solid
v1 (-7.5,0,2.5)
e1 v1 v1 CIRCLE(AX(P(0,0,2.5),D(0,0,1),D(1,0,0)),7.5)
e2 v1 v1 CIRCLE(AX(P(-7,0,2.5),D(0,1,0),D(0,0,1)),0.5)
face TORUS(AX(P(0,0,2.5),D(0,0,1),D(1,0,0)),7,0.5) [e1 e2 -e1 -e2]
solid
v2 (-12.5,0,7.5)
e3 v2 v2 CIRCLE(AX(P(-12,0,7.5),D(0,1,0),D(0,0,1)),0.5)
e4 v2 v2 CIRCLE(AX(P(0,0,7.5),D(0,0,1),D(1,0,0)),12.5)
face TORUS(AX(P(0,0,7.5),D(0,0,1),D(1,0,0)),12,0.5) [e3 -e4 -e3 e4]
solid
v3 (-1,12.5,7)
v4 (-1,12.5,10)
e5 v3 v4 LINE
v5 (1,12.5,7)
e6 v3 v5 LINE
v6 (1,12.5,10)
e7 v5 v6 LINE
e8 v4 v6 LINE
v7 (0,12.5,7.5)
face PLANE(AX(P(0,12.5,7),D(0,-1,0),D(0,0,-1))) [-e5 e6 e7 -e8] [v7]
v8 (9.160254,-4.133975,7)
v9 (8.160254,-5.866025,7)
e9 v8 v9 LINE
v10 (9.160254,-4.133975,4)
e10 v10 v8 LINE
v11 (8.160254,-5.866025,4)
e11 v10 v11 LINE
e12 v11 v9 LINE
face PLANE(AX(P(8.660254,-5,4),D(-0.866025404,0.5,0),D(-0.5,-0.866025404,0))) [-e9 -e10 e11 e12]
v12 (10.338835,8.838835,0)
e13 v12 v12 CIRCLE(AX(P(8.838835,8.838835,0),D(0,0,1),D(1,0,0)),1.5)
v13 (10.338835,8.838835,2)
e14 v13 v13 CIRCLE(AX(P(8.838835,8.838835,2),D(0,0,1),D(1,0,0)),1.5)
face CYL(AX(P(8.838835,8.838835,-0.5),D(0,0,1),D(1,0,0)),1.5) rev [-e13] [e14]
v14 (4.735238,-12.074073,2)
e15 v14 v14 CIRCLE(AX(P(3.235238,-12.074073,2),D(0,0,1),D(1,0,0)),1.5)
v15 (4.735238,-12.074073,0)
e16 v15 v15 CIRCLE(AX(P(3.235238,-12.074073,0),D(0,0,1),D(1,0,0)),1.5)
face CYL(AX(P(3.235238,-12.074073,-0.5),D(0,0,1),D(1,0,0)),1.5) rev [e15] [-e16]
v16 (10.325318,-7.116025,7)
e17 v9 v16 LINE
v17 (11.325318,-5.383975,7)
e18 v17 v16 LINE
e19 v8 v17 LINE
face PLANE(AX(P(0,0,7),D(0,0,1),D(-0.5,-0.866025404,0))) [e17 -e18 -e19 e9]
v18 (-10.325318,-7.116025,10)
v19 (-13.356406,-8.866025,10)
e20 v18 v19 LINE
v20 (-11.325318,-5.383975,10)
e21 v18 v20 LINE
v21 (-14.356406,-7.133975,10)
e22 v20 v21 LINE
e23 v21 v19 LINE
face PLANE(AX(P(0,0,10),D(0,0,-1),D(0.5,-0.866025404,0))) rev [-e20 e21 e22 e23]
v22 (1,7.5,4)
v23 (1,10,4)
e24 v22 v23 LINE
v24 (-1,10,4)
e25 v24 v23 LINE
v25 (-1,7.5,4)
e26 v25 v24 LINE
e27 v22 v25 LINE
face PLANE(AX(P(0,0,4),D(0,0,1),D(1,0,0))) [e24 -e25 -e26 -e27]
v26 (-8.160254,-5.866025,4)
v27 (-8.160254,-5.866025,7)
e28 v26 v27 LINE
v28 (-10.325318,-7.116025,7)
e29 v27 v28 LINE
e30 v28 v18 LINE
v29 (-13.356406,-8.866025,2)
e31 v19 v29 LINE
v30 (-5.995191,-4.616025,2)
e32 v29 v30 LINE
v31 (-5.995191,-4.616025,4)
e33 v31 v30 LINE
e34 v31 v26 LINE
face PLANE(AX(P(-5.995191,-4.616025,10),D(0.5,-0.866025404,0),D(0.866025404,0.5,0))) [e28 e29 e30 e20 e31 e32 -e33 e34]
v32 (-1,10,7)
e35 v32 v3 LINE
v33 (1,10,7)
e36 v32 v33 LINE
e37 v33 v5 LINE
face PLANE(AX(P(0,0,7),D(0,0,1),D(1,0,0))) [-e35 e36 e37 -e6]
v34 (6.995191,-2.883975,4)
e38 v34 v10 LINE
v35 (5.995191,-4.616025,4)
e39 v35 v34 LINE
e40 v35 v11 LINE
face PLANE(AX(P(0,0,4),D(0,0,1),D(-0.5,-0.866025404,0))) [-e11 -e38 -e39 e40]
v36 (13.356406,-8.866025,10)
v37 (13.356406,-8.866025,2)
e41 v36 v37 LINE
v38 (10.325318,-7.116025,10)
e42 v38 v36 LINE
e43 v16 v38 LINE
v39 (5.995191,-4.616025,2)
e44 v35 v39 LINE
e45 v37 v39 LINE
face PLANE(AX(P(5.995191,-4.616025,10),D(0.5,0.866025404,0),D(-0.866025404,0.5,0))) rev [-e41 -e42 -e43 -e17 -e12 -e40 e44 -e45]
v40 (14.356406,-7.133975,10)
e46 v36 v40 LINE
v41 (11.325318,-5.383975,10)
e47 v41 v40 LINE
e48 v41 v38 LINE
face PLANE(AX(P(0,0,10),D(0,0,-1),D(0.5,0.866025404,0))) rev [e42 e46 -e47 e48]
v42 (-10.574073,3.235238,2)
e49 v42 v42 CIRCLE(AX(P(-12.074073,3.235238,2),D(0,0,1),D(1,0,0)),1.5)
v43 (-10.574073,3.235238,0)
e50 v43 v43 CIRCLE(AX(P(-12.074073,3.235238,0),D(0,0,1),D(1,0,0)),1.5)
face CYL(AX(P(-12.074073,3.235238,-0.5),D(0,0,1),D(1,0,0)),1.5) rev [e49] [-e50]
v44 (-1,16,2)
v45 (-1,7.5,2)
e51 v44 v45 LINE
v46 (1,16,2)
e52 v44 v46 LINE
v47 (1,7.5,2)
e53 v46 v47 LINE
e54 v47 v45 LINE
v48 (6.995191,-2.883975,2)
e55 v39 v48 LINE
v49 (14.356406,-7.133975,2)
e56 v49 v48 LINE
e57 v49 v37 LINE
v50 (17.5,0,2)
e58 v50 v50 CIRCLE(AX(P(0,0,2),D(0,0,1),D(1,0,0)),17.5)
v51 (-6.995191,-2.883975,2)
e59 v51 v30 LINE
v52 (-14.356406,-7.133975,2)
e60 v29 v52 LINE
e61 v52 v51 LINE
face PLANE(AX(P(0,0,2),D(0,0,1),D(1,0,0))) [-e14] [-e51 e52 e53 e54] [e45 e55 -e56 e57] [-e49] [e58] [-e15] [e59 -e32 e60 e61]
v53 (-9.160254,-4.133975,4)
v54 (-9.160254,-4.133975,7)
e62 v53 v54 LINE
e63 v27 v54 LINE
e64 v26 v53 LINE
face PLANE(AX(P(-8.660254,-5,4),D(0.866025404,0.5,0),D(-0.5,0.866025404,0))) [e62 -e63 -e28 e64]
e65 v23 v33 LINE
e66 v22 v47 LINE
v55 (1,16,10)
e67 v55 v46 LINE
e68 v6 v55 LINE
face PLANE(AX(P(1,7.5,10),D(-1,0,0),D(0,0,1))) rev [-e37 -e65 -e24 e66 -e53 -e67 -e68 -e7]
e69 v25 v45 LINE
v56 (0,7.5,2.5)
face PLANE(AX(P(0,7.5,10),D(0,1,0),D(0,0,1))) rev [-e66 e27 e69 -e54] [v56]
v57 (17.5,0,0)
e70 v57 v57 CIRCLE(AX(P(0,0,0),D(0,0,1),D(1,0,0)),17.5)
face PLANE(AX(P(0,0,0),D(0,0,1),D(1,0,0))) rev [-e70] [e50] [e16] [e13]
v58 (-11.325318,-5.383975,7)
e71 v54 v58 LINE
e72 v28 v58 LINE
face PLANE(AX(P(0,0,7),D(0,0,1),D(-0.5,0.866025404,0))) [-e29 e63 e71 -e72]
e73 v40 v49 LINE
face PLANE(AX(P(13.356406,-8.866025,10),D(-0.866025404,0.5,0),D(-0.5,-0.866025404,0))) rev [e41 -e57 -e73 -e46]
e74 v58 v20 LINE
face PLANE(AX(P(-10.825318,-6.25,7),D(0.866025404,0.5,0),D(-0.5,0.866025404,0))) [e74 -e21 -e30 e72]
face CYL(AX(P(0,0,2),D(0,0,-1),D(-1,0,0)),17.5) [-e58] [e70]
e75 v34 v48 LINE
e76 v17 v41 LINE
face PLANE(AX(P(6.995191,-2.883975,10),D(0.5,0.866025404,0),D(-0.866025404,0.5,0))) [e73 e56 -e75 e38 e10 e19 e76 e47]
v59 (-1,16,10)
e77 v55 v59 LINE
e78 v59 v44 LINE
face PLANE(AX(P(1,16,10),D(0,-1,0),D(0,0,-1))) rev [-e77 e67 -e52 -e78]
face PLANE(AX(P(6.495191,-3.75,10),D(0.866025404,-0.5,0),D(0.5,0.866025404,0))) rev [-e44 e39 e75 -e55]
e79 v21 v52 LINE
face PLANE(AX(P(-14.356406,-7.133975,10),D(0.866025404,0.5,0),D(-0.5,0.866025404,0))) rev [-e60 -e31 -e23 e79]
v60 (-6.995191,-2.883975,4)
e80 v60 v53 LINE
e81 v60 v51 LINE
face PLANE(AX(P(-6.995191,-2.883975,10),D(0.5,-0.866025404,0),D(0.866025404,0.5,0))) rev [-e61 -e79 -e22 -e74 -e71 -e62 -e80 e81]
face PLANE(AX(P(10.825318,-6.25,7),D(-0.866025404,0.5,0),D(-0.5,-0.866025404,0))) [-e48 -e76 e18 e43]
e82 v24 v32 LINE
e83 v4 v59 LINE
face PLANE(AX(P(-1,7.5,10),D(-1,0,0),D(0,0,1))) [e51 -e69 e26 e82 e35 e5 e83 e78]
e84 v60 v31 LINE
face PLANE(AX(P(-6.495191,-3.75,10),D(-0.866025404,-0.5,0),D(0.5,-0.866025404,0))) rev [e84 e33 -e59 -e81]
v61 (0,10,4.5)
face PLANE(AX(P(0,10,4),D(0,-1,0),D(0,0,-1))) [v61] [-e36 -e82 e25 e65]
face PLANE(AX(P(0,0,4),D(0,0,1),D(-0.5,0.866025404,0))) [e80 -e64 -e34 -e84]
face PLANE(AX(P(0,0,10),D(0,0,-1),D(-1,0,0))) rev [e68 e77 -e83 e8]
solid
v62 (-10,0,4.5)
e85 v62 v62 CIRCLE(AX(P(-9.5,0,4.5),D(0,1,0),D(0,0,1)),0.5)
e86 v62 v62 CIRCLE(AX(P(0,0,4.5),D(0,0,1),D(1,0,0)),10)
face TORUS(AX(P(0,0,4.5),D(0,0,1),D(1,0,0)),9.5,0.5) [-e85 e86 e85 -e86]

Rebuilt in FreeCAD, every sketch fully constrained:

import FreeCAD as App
import Part
import Sketcher
from FreeCAD import Vector


def add_polygon(sketch, points):
    """Adds a closed chain of lines whose ends are joined by coincident constraints."""
    first, n = sketch.GeometryCount, len(points)
    for a, b in zip(points, points[1:] + points[:1]):
        sketch.addGeometry(Part.LineSegment(App.Vector(*a, 0), App.Vector(*b, 0)), False)
    for i in range(n):
        sketch.addConstraint(Sketcher.Constraint("Coincident", first + i, 2, first + (i + 1) % n, 1))

doc = App.newDocument("Part")
body = doc.addObject("PartDesign::Body", "Body")

sketch1 = body.newObject("Sketcher::SketchObject", "Sketch")
sketch1.AttachmentSupport = (doc.getObject("XY_Plane"), [""])
sketch1.MapMode = "FlatFace"
sketch1.addGeometry(Part.Circle(Vector(0, 0, 0), Vector(0, 0, 1), 18), False)
sketch1.addConstraint(Sketcher.Constraint("Coincident", 0, 3, -1, 1))
sketch1.addConstraint(Sketcher.Constraint("Diameter", 0, 35.0))
pad1 = body.newObject("PartDesign::Pad", "Pad")
pad1.Profile = sketch1
pad1.Length = 2

sketch2 = body.newObject("Sketcher::SketchObject", "Sketch001")
sketch2.AttachmentSupport = (doc.getObject("XY_Plane"), [""])
sketch2.MapMode = "FlatFace"
add_polygon(sketch2, [(1, 7.5), (1, 16), (-1, 16), (-1, 7.5)])
sketch2.addConstraint(Sketcher.Constraint("Vertical", 0))
sketch2.addConstraint(Sketcher.Constraint("Horizontal", 1))
sketch2.addConstraint(Sketcher.Constraint("Vertical", 2))
sketch2.addConstraint(Sketcher.Constraint("Horizontal", 3))
sketch2.addConstraint(Sketcher.Constraint("DistanceX", 1, 2, 1, 1, 2.0))
sketch2.addConstraint(Sketcher.Constraint("DistanceY", 0, 1, 0, 2, 8.5))
sketch2.addConstraint(Sketcher.Constraint("DistanceX", -1, 1, 0, 2, 1.0))
sketch2.addConstraint(Sketcher.Constraint("DistanceY", -1, 1, 0, 2, 16.0))
pad2 = body.newObject("PartDesign::Pad", "Pad001")
pad2.Profile = sketch2
pad2.Length = 10

sketch3 = body.newObject("Sketcher::SketchObject", "Sketch002")
sketch3.AttachmentSupport = (doc.getObject("XY_Plane"), [""])
sketch3.MapMode = "FlatFace"
sketch3.AttachmentOffset = App.Placement(Vector(0, 0, 10), App.Rotation())
add_polygon(sketch3, [(1, 7.5), (1, 10), (-1, 10), (-1, 7.5)])
sketch3.addConstraint(Sketcher.Constraint("Vertical", 0))
sketch3.addConstraint(Sketcher.Constraint("Horizontal", 1))
sketch3.addConstraint(Sketcher.Constraint("Vertical", 2))
sketch3.addConstraint(Sketcher.Constraint("Horizontal", 3))
sketch3.addConstraint(Sketcher.Constraint("DistanceX", 1, 2, 1, 1, 2.0))
sketch3.addConstraint(Sketcher.Constraint("DistanceY", 0, 1, 0, 2, 2.5))
sketch3.addConstraint(Sketcher.Constraint("DistanceX", -1, 1, 0, 2, 1.0))
sketch3.addConstraint(Sketcher.Constraint("DistanceY", -1, 1, 0, 2, 10.0))
pocket1 = body.newObject("PartDesign::Pocket", "Pocket")
pocket1.Profile = sketch3
pocket1.Length = 6

sketch4 = body.newObject("Sketcher::SketchObject", "Sketch003")
sketch4.AttachmentSupport = (doc.getObject("XY_Plane"), [""])
sketch4.MapMode = "FlatFace"
sketch4.AttachmentOffset = App.Placement(Vector(0, 0, 10), App.Rotation())
add_polygon(sketch4, [(-1, 12.5), (-1, 10), (1, 10), (1, 12.5)])
sketch4.addConstraint(Sketcher.Constraint("Vertical", 0))
sketch4.addConstraint(Sketcher.Constraint("Horizontal", 1))
sketch4.addConstraint(Sketcher.Constraint("Vertical", 2))
sketch4.addConstraint(Sketcher.Constraint("Horizontal", 3))
sketch4.addConstraint(Sketcher.Constraint("DistanceX", 1, 1, 1, 2, 2.0))
sketch4.addConstraint(Sketcher.Constraint("DistanceY", 0, 2, 0, 1, 2.5))
sketch4.addConstraint(Sketcher.Constraint("DistanceX", 0, 2, -1, 1, 1.0))
sketch4.addConstraint(Sketcher.Constraint("DistanceY", -1, 1, 0, 2, 10.0))
pocket2 = body.newObject("PartDesign::Pocket", "Pocket001")
pocket2.Profile = sketch4
pocket2.Length = 3
doc.recompute()

polarpattern = body.newObject("PartDesign::PolarPattern", "PolarPattern")
polarpattern.Originals = [pad2]
polarpattern.Axis = (doc.getObject("Z_Axis"), [""])
polarpattern.Angle = 360
polarpattern.Occurrences = 3
body.Tip = polarpattern
doc.recompute()

polarpattern2 = body.newObject("PartDesign::PolarPattern", "PolarPattern001")
polarpattern2.Originals = [pocket1, pocket2]
polarpattern2.Axis = (doc.getObject("Z_Axis"), [""])
polarpattern2.Angle = 360
polarpattern2.Occurrences = 3
body.Tip = polarpattern2

sketch5 = body.newObject("Sketcher::SketchObject", "Sketch004")
sketch5.AttachmentSupport = (doc.getObject("XY_Plane"), [""])
sketch5.MapMode = "FlatFace"
sketch5.AttachmentOffset = App.Placement(Vector(0, 0, 4.5), App.Rotation())
sketch5.addGeometry(Part.Circle(Vector(3.2, -12.1, 0), Vector(0, 0, 1), 1.5), False)
sketch5.addGeometry(Part.Circle(Vector(8.8, 8.8, 0), Vector(0, 0, 1), 1.5), False)
sketch5.addGeometry(Part.Circle(Vector(-12.1, 3.2, 0), Vector(0, 0, 1), 1.5), False)
sketch5.addConstraint(Sketcher.Constraint("Equal", 0, 1))
sketch5.addConstraint(Sketcher.Constraint("Equal", 1, 2))
sketch5.addConstraint(Sketcher.Constraint("Diameter", 0, 3.0))
sketch5.addConstraint(Sketcher.Constraint("DistanceX", -1, 1, 0, 3, 3.235238))
sketch5.addConstraint(Sketcher.Constraint("DistanceY", -1, 1, 2, 3, 3.235238))
sketch5.addConstraint(Sketcher.Constraint("DistanceX", 2, 3, 0, 3, 15.309311))
sketch5.addConstraint(Sketcher.Constraint("DistanceY", 0, 3, 2, 3, 15.309311))
sketch5.addConstraint(Sketcher.Constraint("DistanceX", -1, 1, 1, 3, 8.838835))
sketch5.addConstraint(Sketcher.Constraint("DistanceY", -1, 1, 1, 3, 8.838835))
pocket3 = body.newObject("PartDesign::Pocket", "Pocket002")
pocket3.Profile = sketch5
pocket3.Length = 5
body2 = doc.addObject("PartDesign::Body", "Body001")

sketch6 = body2.newObject("Sketcher::SketchObject", "Sketch005")
sketch6.AttachmentSupport = (doc.getObject("XZ_Plane001"), [""])
sketch6.MapMode = "FlatFace"
sketch6.addGeometry(Part.Circle(Vector(-7, 2.5, 0), Vector(0, 0, 1), 0.5), False)
sketch6.addConstraint(Sketcher.Constraint("Diameter", 0, 1.0))
sketch6.addConstraint(Sketcher.Constraint("DistanceX", 0, 3, -1, 1, 7.0))
sketch6.addConstraint(Sketcher.Constraint("DistanceY", -1, 1, 0, 3, 2.5))

sketch7 = body2.newObject("Sketcher::SketchObject", "Sketch006")
sketch7.AttachmentSupport = (doc.getObject("XY_Plane001"), [""])
sketch7.MapMode = "FlatFace"
sketch7.AttachmentOffset = App.Placement(Vector(0, 0, 2.5), App.Rotation())
sketch7.addGeometry(Part.Circle(Vector(0, 0, 0), Vector(0, 0, 1), 7), False)
sketch7.addConstraint(Sketcher.Constraint("Coincident", 0, 3, -1, 1))
sketch7.addConstraint(Sketcher.Constraint("Diameter", 0, 14.0))
doc.recompute()

additivepipe = body2.newObject("PartDesign::AdditivePipe", "AdditivePipe")
additivepipe.Profile = sketch6
additivepipe.Spine = (sketch7, ["Edge1"])
body3 = doc.addObject("PartDesign::Body", "Body002")

sketch8 = body3.newObject("Sketcher::SketchObject", "Sketch007")
sketch8.AttachmentSupport = (doc.getObject("XZ_Plane002"), [""])
sketch8.MapMode = "FlatFace"
sketch8.addGeometry(Part.Circle(Vector(-9.5, 4.5, 0), Vector(0, 0, 1), 0.5), False)
sketch8.addConstraint(Sketcher.Constraint("Diameter", 0, 1.0))
sketch8.addConstraint(Sketcher.Constraint("DistanceX", 0, 3, -1, 1, 9.5))
sketch8.addConstraint(Sketcher.Constraint("DistanceY", -1, 1, 0, 3, 4.5))

sketch9 = body3.newObject("Sketcher::SketchObject", "Sketch008")
sketch9.AttachmentSupport = (doc.getObject("XY_Plane002"), [""])
sketch9.MapMode = "FlatFace"
sketch9.AttachmentOffset = App.Placement(Vector(0, 0, 4.5), App.Rotation())
sketch9.addGeometry(Part.Circle(Vector(0, 0, 0), Vector(0, 0, 1), 10), False)
sketch9.addConstraint(Sketcher.Constraint("Coincident", 0, 3, -1, 1))
sketch9.addConstraint(Sketcher.Constraint("Diameter", 0, 19.0))
doc.recompute()

additivepipe2 = body3.newObject("PartDesign::AdditivePipe", "AdditivePipe001")
additivepipe2.Profile = sketch8
additivepipe2.Spine = (sketch9, ["Edge1"])
body4 = doc.addObject("PartDesign::Body", "Body003")

sketch10 = body4.newObject("Sketcher::SketchObject", "Sketch009")
sketch10.AttachmentSupport = (doc.getObject("XZ_Plane003"), [""])
sketch10.MapMode = "FlatFace"
sketch10.addGeometry(Part.Circle(Vector(-12, 7.5, 0), Vector(0, 0, 1), 0.5), False)
sketch10.addConstraint(Sketcher.Constraint("Diameter", 0, 1.0))
sketch10.addConstraint(Sketcher.Constraint("DistanceX", 0, 3, -1, 1, 12.0))
sketch10.addConstraint(Sketcher.Constraint("DistanceY", -1, 1, 0, 3, 7.5))

sketch11 = body4.newObject("Sketcher::SketchObject", "Sketch010")
sketch11.AttachmentSupport = (doc.getObject("XY_Plane003"), [""])
sketch11.MapMode = "FlatFace"
sketch11.AttachmentOffset = App.Placement(Vector(0, 0, 7.5), App.Rotation())
sketch11.addGeometry(Part.Circle(Vector(0, 0, 0), Vector(0, 0, 1), 12), False)
sketch11.addConstraint(Sketcher.Constraint("Coincident", 0, 3, -1, 1))
sketch11.addConstraint(Sketcher.Constraint("Diameter", 0, 24.0))
doc.recompute()

additivepipe3 = body4.newObject("PartDesign::AdditivePipe", "AdditivePipe002")
additivepipe3.Profile = sketch10
additivepipe3.Spine = (sketch11, ["Edge1"])

doc.recompute()
